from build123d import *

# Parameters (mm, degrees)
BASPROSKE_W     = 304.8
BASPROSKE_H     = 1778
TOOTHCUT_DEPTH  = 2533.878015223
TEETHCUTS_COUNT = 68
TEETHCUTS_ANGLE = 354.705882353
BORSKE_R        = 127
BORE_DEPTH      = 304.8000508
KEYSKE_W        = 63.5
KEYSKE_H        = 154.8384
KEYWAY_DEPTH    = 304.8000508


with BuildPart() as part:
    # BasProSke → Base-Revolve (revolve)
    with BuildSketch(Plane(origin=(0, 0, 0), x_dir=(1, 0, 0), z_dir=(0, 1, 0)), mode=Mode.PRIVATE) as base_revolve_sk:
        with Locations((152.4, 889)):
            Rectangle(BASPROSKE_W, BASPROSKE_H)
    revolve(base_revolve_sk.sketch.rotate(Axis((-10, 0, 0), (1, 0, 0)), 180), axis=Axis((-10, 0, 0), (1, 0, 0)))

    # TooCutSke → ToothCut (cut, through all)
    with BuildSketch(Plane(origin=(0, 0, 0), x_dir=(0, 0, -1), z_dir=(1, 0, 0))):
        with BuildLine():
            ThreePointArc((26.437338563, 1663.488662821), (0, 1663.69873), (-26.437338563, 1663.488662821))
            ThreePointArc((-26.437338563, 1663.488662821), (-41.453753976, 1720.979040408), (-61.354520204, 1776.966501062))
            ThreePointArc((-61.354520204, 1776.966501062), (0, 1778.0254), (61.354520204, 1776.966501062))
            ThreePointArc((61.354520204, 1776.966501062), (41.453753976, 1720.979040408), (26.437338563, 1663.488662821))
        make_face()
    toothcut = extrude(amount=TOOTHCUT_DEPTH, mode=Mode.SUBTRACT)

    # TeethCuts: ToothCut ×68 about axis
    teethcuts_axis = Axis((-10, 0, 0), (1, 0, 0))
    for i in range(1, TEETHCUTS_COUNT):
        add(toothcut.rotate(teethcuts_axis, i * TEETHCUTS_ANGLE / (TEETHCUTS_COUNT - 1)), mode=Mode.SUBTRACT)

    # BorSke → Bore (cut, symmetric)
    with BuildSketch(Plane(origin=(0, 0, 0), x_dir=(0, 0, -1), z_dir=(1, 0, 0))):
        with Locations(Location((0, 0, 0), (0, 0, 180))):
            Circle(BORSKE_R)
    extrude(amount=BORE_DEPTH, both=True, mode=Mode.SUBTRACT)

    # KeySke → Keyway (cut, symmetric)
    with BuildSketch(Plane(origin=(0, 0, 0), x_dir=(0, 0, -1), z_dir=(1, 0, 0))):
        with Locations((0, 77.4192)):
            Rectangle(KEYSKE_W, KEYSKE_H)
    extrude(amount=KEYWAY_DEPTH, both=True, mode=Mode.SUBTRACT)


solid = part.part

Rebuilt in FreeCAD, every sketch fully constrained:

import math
import FreeCAD as App
import Part
import Sketcher
from FreeCAD import Vector
Q = App.Units.Quantity

doc = App.newDocument("Part")
body = doc.addObject("PartDesign::Body", "Body")

# Sketch on XZ plane
sketch1 = body.newObject("Sketcher::SketchObject", "Sketch")
sketch1.AttachmentSupport = (doc.getObject("XZ_Plane"), [""])
sketch1.MapMode = "FlatFace"
sketch1.addGeometry(Part.LineSegment(Vector(0, -1778, 0), Vector(0, 0, 0)), False)
sketch1.addGeometry(Part.LineSegment(Vector(0, 0, 0), Vector(304.8, 0, 0)), False)
sketch1.addGeometry(Part.LineSegment(Vector(304.8, 0, 0), Vector(304.8, -1778, 0)), False)
sketch1.addGeometry(Part.LineSegment(Vector(304.8, -1778, 0), Vector(0, -1778, 0)), False)
sketch1.addConstraint(Sketcher.Constraint("Coincident", 0, 2, 1, 1))
sketch1.addConstraint(Sketcher.Constraint("Coincident", 1, 2, 2, 1))
sketch1.addConstraint(Sketcher.Constraint("Coincident", 2, 2, 3, 1))
sketch1.addConstraint(Sketcher.Constraint("Coincident", 3, 2, 0, 1))
sketch1.addConstraint(Sketcher.Constraint("Vertical", 0))
sketch1.addConstraint(Sketcher.Constraint("Horizontal", 1))
sketch1.addConstraint(Sketcher.Constraint("Vertical", 2))
sketch1.addConstraint(Sketcher.Constraint("Horizontal", 3))
sketch1.addConstraint(Sketcher.Constraint("Coincident", 0, 2, -1, 1))
sketch1.addConstraint(Sketcher.Constraint("DistanceX", 1, 1, 1, 2, Q("12 in")))
sketch1.addConstraint(Sketcher.Constraint("DistanceY", 0, 1, 0, 2, Q("70 in")))
revolution = body.newObject("PartDesign::Revolution", "Revolution")
revolution.Profile = sketch1
revolution.ReferenceAxis = (sketch1, ["H_Axis"])
revolution.Angle = 360

# Sketch on YZ plane
sketch2 = body.newObject("Sketcher::SketchObject", "Sketch001")
sketch2.AttachmentSupport = (doc.getObject("YZ_Plane"), [""])
sketch2.MapMode = "FlatFace"
sketch2.addGeometry(Part.ArcOfCircle(Part.Circle(Vector(-0.000002, 0, 0), Vector(0, 0, 1), 1663.698732), math.radians(-0.910508), math.radians(0.910508)), False)
sketch2.addGeometry(Part.ArcOfCircle(Part.Circle(Vector(1517.796099, -701.780845, 0), Vector(0, 0, 1), 690.88), math.radians(67.9676), math.radians(77.82609)), False)
sketch2.addGeometry(Part.ArcOfCircle(Part.Circle(Vector(0, 0, 0), Vector(0, 0, 1), 1778.0254), math.radians(-1.977504), math.radians(1.977504)), False)
sketch2.addGeometry(Part.ArcOfCircle(Part.Circle(Vector(1517.796099, 701.780845, 0), Vector(0, 0, 1), 690.88), math.radians(-77.82609), math.radians(-67.9676)), False)
sketch2.addConstraint(Sketcher.Constraint("Coincident", 0, 1, 1, 2))
sketch2.addConstraint(Sketcher.Constraint("Coincident", 1, 1, 2, 1))
sketch2.addConstraint(Sketcher.Constraint("Coincident", 2, 2, 3, 2))
sketch2.addConstraint(Sketcher.Constraint("Coincident", 3, 1, 0, 2))
sketch2.addConstraint(Sketcher.Constraint("Coincident", 0, 3, -1, 1))
sketch2.addConstraint(Sketcher.Constraint("Coincident", 2, 3, -1, 1))
sketch2.addConstraint(Sketcher.Constraint("Equal", 1, 3))
sketch2.addConstraint(Sketcher.Constraint("Symmetric", 1, 3, 3, 3, -1))
sketch2.addConstraint(Sketcher.Constraint("Radius", 1, Q("27.2 in")))
sketch2.addConstraint(Sketcher.Constraint("Radius", 2, Q("70.001 in")))
sketch2.addConstraint(Sketcher.Constraint("Radius", 0, 1663.698732))
sketch2.addConstraint(Sketcher.Constraint("DistanceX", -1, 1, 1, 3, 1517.796099))
sketch2.addConstraint(Sketcher.Constraint("DistanceY", 1, 1, -1, 1, 61.35452))
pocket1 = body.newObject("PartDesign::Pocket", "Pocket")
pocket1.Profile = sketch2
pocket1.Type = "ThroughAll"
pocket1.Reversed = True
doc.recompute()

polarpattern = body.newObject("PartDesign::PolarPattern", "PolarPattern")
polarpattern.Originals = [pocket1]
polarpattern.Axis = (doc.getObject("X_Axis"), [""])
polarpattern.Angle = 360
polarpattern.Occurrences = 68
body.Tip = polarpattern

# Sketch on YZ plane
sketch3 = body.newObject("Sketcher::SketchObject", "Sketch002")
sketch3.AttachmentSupport = (doc.getObject("YZ_Plane"), [""])
sketch3.MapMode = "FlatFace"
sketch3.addGeometry(Part.Circle(Vector(0, 0, 0), Vector(0, 0, 1), 127), False)
sketch3.addConstraint(Sketcher.Constraint("Coincident", 0, 3, -1, 1))
sketch3.addConstraint(Sketcher.Constraint("Diameter", 0, Q("10 in")))
pocket2 = body.newObject("PartDesign::Pocket", "Pocket001")
pocket2.Profile = sketch3
pocket2.Length = 609.600102
pocket2.Midplane = True

# Sketch on YZ plane
sketch4 = body.newObject("Sketcher::SketchObject", "Sketch003")
sketch4.AttachmentSupport = (doc.getObject("YZ_Plane"), [""])
sketch4.MapMode = "FlatFace"
sketch4.addGeometry(Part.LineSegment(Vector(154.8384, 31.75, 0), Vector(0, 31.75, 0)), False)
sketch4.addGeometry(Part.LineSegment(Vector(0, 31.75, 0), Vector(0, -31.75, 0)), False)
sketch4.addGeometry(Part.LineSegment(Vector(0, -31.75, 0), Vector(154.8384, -31.75, 0)), False)
sketch4.addGeometry(Part.LineSegment(Vector(154.8384, -31.75, 0), Vector(154.8384, 31.75, 0)), False)
sketch4.addConstraint(Sketcher.Constraint("Coincident", 0, 2, 1, 1))
sketch4.addConstraint(Sketcher.Constraint("Coincident", 1, 2, 2, 1))
sketch4.addConstraint(Sketcher.Constraint("Coincident", 2, 2, 3, 1))
sketch4.addConstraint(Sketcher.Constraint("Coincident", 3, 2, 0, 1))
sketch4.addConstraint(Sketcher.Constraint("Horizontal", 0))
sketch4.addConstraint(Sketcher.Constraint("Vertical", 1))
sketch4.addConstraint(Sketcher.Constraint("Horizontal", 2))
sketch4.addConstraint(Sketcher.Constraint("Vertical", 3))
sketch4.addConstraint(Sketcher.Constraint("Symmetric", 0, 2, 1, 2, -1, 1))
sketch4.addConstraint(Sketcher.Constraint("DistanceY", 1, 2, 1, 1, Q("2.5 in")))
sketch4.addConstraint(Sketcher.Constraint("DistanceX", 0, 2, 0, 1, Q("6.096 in")))
pocket3 = body.newObject("PartDesign::Pocket", "Pocket002")
pocket3.Profile = sketch4
pocket3.Length = 609.600102
pocket3.Midplane = True

doc.recompute()
